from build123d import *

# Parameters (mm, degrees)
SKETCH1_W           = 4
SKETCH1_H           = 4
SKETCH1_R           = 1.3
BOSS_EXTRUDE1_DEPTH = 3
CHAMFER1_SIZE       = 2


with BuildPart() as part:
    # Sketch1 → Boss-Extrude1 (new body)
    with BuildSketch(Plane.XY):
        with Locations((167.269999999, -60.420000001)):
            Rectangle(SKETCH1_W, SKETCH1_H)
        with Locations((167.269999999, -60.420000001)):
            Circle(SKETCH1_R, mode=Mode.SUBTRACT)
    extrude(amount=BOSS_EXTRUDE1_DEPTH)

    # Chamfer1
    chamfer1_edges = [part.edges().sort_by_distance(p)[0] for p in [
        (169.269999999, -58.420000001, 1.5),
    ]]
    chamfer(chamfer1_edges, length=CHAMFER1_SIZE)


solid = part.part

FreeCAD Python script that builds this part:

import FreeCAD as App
import Part
import Sketcher
from FreeCAD import Vector
Q = App.Units.Quantity


def edges_at(feature, points):
    """Names of the edges that pass closest to the given points."""
    edges = feature.Shape.Edges
    near = lambda p: min(range(len(edges)), key=lambda i: edges[i].distToShape(Part.Vertex(*p))[0])
    return sorted({f"Edge{near(p) + 1}" for p in points})


def add_polygon(sketch, points):
    """Adds a closed chain of lines whose ends are joined by coincident constraints."""
    first, n = sketch.GeometryCount, len(points)
    for a, b in zip(points, points[1:] + points[:1]):
        sketch.addGeometry(Part.LineSegment(App.Vector(*a, 0), App.Vector(*b, 0)), False)
    for i in range(n):
        sketch.addConstraint(Sketcher.Constraint("Coincident", first + i, 2, first + (i + 1) % n, 1))

doc = App.newDocument("Part")
body = doc.addObject("PartDesign::Body", "Body")

# Sketch on XY plane
sketch1 = doc.addObject("Sketcher::SketchObject", "Sketch")
body.addObject(sketch1)
sketch1.AttachmentSupport = (doc.XY_Plane, [""])
sketch1.MapMode = "FlatFace"
add_polygon(sketch1, [(165.3, -58.4), (165.3, -62.4), (169.3, -62.4), (169.3, -58.4)])  # lines 0-3
sketch1.addGeometry(Part.Circle(Vector(167.3, -60.4, 0), Vector(0, 0, 1), 1.3), False)  # 4
sketch1.addConstraint([
    Sketcher.Constraint("Vertical", 0),
    Sketcher.Constraint("Horizontal", 1),
    Sketcher.Constraint("Vertical", 2),
    Sketcher.Constraint("Horizontal", 3),
    Sketcher.Constraint("Equal", 3, 0),
    Sketcher.Constraint("Diameter", 4, Q("2.6 mm")),
    Sketcher.Constraint("DistanceX", 1, 1, 1, 2, Q("4 mm")),
    Sketcher.Constraint("DistanceX", 0, 2, 4, 3, Q("2 mm")),
    Sketcher.Constraint("DistanceY", 0, 2, 4, 3, Q("2 mm")),
    Sketcher.Constraint("DistanceX", -1, 1, 4, 3, Q("167.27 mm")),
    Sketcher.Constraint("DistanceY", 4, 3, -1, 1, Q("60.42 mm")),
])
pad1 = doc.addObject("PartDesign::Pad", "Pad")
body.addObject(pad1)
pad1.Profile = sketch1
pad1.Length = 3
doc.recompute()

chamfer = doc.addObject("PartDesign::Chamfer", "Chamfer")
body.addObject(chamfer)
chamfer.Base = (pad1, edges_at(pad1, [(169.27, -58.42, 1.5)]))
chamfer.Size = 2

doc.recompute()
